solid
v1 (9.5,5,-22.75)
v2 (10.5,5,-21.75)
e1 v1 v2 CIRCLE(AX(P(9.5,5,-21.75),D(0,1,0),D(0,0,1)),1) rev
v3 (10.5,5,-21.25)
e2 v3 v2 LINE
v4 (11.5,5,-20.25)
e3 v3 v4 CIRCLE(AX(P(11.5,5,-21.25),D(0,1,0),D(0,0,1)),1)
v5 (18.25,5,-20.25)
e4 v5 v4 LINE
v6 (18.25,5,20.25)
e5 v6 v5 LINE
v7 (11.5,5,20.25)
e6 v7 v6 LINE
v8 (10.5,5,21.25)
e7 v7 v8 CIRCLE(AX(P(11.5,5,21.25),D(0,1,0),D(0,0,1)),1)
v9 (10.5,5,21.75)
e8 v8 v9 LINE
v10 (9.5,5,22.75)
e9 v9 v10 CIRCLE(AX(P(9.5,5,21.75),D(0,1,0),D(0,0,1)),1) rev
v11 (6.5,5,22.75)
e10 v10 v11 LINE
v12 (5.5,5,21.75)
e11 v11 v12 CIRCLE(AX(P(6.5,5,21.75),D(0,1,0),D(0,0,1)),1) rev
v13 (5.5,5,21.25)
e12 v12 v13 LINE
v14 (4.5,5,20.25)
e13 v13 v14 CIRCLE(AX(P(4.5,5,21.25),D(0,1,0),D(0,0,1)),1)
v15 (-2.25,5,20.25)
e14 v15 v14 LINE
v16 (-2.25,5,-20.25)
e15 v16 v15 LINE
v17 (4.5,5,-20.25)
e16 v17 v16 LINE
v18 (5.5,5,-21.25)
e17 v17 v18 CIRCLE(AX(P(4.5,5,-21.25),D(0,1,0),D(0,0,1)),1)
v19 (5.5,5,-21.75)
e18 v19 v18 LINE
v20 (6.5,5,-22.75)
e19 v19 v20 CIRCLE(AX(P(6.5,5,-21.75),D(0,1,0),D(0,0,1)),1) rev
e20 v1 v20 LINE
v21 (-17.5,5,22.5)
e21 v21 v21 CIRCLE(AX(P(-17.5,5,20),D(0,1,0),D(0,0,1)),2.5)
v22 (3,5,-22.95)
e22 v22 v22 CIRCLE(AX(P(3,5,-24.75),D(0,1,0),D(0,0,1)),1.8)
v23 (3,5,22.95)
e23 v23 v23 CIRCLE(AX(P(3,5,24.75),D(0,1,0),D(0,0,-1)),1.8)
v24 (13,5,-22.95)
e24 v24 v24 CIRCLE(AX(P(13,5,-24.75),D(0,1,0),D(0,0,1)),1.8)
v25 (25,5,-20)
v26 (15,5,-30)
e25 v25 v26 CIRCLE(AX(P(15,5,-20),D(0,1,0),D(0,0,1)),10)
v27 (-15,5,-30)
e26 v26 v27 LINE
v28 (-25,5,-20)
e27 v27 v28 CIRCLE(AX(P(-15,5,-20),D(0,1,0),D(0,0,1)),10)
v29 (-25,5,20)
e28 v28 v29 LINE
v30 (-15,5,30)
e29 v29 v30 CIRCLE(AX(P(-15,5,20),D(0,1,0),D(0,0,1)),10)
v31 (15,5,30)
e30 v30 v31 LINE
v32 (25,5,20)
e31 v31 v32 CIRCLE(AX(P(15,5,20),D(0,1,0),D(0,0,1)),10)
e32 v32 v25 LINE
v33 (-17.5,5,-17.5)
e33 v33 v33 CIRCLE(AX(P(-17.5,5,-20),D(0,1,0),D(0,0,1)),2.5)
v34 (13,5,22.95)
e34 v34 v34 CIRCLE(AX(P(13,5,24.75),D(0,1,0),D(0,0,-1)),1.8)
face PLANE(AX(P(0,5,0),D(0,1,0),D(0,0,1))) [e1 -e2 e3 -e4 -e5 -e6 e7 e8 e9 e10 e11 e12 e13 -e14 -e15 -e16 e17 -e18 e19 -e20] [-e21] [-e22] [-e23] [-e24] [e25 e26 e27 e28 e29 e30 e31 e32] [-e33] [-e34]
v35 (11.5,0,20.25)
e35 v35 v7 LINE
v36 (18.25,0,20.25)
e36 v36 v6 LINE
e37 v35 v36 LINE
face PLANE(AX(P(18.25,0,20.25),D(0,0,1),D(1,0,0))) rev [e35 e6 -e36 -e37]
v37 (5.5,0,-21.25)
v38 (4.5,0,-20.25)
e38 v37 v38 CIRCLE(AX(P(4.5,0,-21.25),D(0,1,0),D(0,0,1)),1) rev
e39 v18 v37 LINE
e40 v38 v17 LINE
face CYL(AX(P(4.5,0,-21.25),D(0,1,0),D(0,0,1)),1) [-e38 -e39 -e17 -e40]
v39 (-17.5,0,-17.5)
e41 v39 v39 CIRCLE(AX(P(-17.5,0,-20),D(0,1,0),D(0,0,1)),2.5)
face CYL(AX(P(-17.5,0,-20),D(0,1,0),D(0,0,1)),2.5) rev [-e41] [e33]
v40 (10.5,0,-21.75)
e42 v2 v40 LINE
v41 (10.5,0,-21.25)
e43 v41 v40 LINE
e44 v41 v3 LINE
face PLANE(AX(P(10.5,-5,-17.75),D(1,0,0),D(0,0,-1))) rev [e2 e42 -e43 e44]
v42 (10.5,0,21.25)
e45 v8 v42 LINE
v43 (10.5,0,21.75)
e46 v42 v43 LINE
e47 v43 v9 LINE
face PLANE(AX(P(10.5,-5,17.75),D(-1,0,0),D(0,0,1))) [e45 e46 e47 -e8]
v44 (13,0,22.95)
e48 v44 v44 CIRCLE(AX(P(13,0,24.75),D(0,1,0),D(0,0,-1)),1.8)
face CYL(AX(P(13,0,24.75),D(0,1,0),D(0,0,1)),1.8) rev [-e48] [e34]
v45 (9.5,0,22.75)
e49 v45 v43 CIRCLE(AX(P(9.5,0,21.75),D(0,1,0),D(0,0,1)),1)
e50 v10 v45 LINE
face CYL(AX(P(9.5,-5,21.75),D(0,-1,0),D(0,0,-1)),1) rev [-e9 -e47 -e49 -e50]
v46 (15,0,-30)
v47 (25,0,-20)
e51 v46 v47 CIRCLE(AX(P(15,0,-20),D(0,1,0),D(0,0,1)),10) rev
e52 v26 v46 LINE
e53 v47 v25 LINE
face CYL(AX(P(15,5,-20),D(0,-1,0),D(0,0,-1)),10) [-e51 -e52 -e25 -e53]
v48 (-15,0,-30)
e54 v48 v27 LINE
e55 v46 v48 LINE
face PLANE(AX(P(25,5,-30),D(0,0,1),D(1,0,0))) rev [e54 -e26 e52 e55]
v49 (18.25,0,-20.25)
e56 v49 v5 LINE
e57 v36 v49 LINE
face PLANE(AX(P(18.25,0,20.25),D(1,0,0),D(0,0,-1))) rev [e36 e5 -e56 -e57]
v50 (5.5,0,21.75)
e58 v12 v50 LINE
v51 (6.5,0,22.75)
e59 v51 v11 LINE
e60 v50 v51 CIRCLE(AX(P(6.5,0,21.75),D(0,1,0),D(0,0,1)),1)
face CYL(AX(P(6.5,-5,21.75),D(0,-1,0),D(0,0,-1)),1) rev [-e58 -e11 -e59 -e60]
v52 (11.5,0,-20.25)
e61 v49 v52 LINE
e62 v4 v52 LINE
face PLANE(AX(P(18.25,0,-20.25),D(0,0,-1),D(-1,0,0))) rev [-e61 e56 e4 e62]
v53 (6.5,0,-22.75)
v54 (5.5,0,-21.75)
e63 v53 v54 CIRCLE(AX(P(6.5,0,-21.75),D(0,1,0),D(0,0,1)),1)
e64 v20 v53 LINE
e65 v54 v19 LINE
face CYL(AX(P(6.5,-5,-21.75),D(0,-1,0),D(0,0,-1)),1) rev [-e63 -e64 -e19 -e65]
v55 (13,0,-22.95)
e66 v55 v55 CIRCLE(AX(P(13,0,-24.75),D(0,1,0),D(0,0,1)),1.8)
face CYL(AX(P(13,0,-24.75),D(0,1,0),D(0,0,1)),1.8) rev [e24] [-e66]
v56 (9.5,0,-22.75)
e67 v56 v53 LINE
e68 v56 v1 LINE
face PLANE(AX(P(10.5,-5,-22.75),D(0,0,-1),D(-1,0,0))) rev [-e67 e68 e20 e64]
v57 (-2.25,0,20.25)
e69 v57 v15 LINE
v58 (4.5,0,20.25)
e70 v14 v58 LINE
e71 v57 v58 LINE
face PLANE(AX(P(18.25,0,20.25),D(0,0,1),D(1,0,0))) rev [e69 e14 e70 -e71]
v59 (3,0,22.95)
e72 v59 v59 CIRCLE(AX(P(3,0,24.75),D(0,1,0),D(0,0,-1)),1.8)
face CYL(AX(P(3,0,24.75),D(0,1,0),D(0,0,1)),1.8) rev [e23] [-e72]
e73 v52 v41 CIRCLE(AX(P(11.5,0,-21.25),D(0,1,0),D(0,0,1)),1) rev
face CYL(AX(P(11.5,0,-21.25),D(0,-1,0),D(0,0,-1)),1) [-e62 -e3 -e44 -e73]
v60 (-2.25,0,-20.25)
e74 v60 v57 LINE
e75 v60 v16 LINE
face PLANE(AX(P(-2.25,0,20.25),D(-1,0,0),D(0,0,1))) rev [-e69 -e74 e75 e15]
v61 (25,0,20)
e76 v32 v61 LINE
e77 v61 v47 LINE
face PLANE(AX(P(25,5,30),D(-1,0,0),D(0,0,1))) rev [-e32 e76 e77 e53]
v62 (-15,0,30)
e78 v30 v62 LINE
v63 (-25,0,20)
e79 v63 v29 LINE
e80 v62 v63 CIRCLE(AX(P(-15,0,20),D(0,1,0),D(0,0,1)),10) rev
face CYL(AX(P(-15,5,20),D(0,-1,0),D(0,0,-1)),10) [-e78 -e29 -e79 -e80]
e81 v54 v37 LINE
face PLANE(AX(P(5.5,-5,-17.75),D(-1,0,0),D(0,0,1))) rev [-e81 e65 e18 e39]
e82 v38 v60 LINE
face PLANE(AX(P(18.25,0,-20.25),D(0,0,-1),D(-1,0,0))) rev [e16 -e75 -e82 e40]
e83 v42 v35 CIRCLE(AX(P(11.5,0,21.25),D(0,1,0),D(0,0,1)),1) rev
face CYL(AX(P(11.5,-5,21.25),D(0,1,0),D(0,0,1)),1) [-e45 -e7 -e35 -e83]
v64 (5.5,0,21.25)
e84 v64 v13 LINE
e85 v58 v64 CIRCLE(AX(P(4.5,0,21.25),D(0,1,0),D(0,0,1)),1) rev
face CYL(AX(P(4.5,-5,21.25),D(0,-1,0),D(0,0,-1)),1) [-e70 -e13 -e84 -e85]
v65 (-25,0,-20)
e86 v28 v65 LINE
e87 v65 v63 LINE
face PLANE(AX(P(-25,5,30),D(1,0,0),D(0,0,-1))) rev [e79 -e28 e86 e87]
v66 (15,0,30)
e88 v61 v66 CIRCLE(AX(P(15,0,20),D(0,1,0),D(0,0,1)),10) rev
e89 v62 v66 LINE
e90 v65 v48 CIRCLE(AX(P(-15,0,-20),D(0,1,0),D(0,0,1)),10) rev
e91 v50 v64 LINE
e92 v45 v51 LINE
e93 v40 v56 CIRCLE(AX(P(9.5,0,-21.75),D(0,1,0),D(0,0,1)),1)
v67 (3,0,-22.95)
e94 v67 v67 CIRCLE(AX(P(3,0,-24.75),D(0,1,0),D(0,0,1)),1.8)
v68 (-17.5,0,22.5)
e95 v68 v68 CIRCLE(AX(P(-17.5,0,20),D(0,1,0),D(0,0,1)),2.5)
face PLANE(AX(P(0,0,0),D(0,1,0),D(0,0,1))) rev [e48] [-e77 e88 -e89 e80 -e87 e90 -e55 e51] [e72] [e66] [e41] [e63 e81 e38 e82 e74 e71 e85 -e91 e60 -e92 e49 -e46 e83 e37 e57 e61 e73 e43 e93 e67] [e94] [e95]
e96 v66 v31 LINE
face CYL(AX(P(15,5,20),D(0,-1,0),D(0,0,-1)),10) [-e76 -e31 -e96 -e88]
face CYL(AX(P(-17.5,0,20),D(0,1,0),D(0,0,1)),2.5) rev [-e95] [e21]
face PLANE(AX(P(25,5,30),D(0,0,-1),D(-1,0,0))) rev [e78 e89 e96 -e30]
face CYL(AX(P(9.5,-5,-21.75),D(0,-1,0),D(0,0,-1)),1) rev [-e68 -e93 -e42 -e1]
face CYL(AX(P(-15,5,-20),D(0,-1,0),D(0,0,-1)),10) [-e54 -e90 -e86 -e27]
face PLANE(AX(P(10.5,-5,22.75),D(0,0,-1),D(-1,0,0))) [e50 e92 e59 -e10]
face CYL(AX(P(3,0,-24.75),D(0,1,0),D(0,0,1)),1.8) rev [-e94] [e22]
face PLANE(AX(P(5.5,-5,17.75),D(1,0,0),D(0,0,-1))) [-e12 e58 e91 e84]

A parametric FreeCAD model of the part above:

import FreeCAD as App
import Part
import Sketcher
from FreeCAD import Vector
Q = App.Units.Quantity


def edges_at(feature, points):
    """Names of the edges that pass closest to the given points."""
    edges = feature.Shape.Edges
    near = lambda p: min(range(len(edges)), key=lambda i: edges[i].distToShape(Part.Vertex(*p))[0])
    return sorted({f"Edge{near(p) + 1}" for p in points})

doc = App.newDocument("Part")
body = doc.addObject("PartDesign::Body", "Body")

# Sketch on XZ plane
sketch1 = body.newObject("Sketcher::SketchObject", "Sketch")
sketch1.AttachmentSupport = (doc.getObject("XZ_Plane"), [""])
sketch1.MapMode = "FlatFace"
sketch1.addGeometry([
    Part.LineSegment(Vector(-25, -30, 0), Vector(-25, 30, 0)),
    Part.LineSegment(Vector(-25, 30, 0), Vector(25, 30, 0)),
    Part.LineSegment(Vector(25, 30, 0), Vector(25, -30, 0)),
    Part.LineSegment(Vector(25, -30, 0), Vector(-25, -30, 0)),
], False)
sketch1.addConstraint([
    Sketcher.Constraint("Coincident", 0, 2, 1, 1),
    Sketcher.Constraint("Coincident", 1, 2, 2, 1),
    Sketcher.Constraint("Coincident", 2, 2, 3, 1),
    Sketcher.Constraint("Coincident", 3, 2, 0, 1),
    Sketcher.Constraint("Vertical", 0),
    Sketcher.Constraint("Horizontal", 1),
    Sketcher.Constraint("Vertical", 2),
    Sketcher.Constraint("Horizontal", 3),
    Sketcher.Constraint("Symmetric", 0, 2, 2, 2, -1, 1),
    Sketcher.Constraint("DistanceX", 1, 1, 1, 2, Q("50 mm")),
    Sketcher.Constraint("DistanceY", 0, 1, 0, 2, Q("60 mm")),
])
pad1 = body.newObject("PartDesign::Pad", "Pad")
pad1.Profile = sketch1
pad1.Length = 5
pad1.Reversed = True

# Sketch on XZ plane
sketch2 = body.newObject("Sketcher::SketchObject", "Sketch001")
sketch2.AttachmentSupport = (doc.getObject("XZ_Plane"), [""])
sketch2.MapMode = "FlatFace"
sketch2.AttachmentOffset = App.Placement(Vector(0, 0, -5), App.Rotation())
sketch2.addGeometry([
    Part.LineSegment(Vector(-2, -20, 0), Vector(-2, 20, 0)),
    Part.LineSegment(Vector(-2, 20, 0), Vector(18, 20, 0)),
    Part.LineSegment(Vector(18, 20, 0), Vector(18, -20, 0)),
    Part.LineSegment(Vector(18, -20, 0), Vector(-2, -20, 0)),
], False)
sketch2.addConstraint([
    Sketcher.Constraint("Coincident", 0, 2, 1, 1),
    Sketcher.Constraint("Coincident", 1, 2, 2, 1),
    Sketcher.Constraint("Coincident", 2, 2, 3, 1),
    Sketcher.Constraint("Coincident", 3, 2, 0, 1),
    Sketcher.Constraint("Vertical", 0),
    Sketcher.Constraint("Horizontal", 1),
    Sketcher.Constraint("Vertical", 2),
    Sketcher.Constraint("Horizontal", 3),
    Sketcher.Constraint("DistanceX", 1, 1, 1, 2, Q("20.5 mm")),
    Sketcher.Constraint("DistanceY", 0, 1, 0, 2, Q("40.5 mm")),
    Sketcher.Constraint("DistanceX", 0, 2, -1, 1, Q("2.25 mm")),
    Sketcher.Constraint("DistanceY", -1, 1, 0, 2, Q("20.25 mm")),
])
pocket1 = body.newObject("PartDesign::Pocket", "Pocket")
pocket1.Profile = sketch2
pocket1.Length = 5
pocket1.Reversed = True

# Sketch on XZ plane
sketch3 = body.newObject("Sketcher::SketchObject", "Sketch002")
sketch3.AttachmentSupport = (doc.getObject("XZ_Plane"), [""])
sketch3.MapMode = "FlatFace"
sketch3.AttachmentOffset = App.Placement(Vector(0, 0, -5), App.Rotation())
sketch3.addGeometry([
    Part.Circle(Vector(3, -24.8, 0), Vector(0, 0, 1), 1.8),
    Part.Circle(Vector(13, -24.8, 0), Vector(0, 0, 1), 1.8),
    Part.Circle(Vector(13, 24.8, 0), Vector(0, 0, 1), 1.8),
    Part.Circle(Vector(3, 24.8, 0), Vector(0, 0, 1), 1.8),
], False)
sketch3.addConstraint([
    Sketcher.Constraint("Equal", 0, 1),
    Sketcher.Constraint("Equal", 1, 2),
    Sketcher.Constraint("Equal", 2, 3),
    Sketcher.Constraint("Symmetric", 1, 3, 2, 3, -1),
    Sketcher.Constraint("Symmetric", 0, 3, 3, 3, -1),
    Sketcher.Constraint("Horizontal", 0, 3, 1, 3),
    Sketcher.Constraint("Diameter", 0, Q("3.6 mm")),
    Sketcher.Constraint("DistanceX", -1, 1, 0, 3, Q("3 mm")),
    Sketcher.Constraint("DistanceX", -1, 1, 1, 3, Q("13 mm")),
    Sketcher.Constraint("DistanceY", 1, 3, 2, 3, Q("49.5 mm")),
])
pocket2 = body.newObject("PartDesign::Pocket", "Pocket001")
pocket2.Profile = sketch3
pocket2.Length = 5
pocket2.Reversed = True

# Sketch on XZ plane
sketch4 = body.newObject("Sketcher::SketchObject", "Sketch003")
sketch4.AttachmentSupport = (doc.getObject("XZ_Plane"), [""])
sketch4.MapMode = "FlatFace"
sketch4.AttachmentOffset = App.Placement(Vector(0, 0, -5), App.Rotation())
sketch4.addGeometry([
    Part.Circle(Vector(-17.5, -20, 0), Vector(0, 0, 1), 2.5),
    Part.Circle(Vector(-17.5, 20, 0), Vector(0, 0, 1), 2.5),
], False)
sketch4.addConstraint([
    Sketcher.Constraint("Equal", 0, 1),
    Sketcher.Constraint("Symmetric", 0, 3, 1, 3, -1),
    Sketcher.Constraint("Diameter", 0, Q("5 mm")),
    Sketcher.Constraint("DistanceY", 0, 3, -1, 1, Q("20 mm")),
    Sketcher.Constraint("DistanceX", 0, 3, -1, 1, Q("17.5 mm")),
])
pocket3 = body.newObject("PartDesign::Pocket", "Pocket002")
pocket3.Profile = sketch4
pocket3.Length = 5
pocket3.Reversed = True
doc.recompute()

fillet = body.newObject("PartDesign::Fillet", "Fillet")
fillet.Base = (pocket3, edges_at(pocket3, [
    (-25, 2.5, -30),
    (25, 2.5, -30),
    (25, 2.5, 30),
    (-25, 2.5, 30),
]))
fillet.Radius = 10

# Sketch on XZ plane
sketch5 = body.newObject("Sketcher::SketchObject", "Sketch004")
sketch5.AttachmentSupport = (doc.getObject("XZ_Plane"), [""])
sketch5.MapMode = "FlatFace"
sketch5.AttachmentOffset = App.Placement(Vector(0, 0, -5), App.Rotation())
sketch5.addGeometry([
    Part.LineSegment(Vector(6, -23, 0), Vector(6, -18, 0)),
    Part.LineSegment(Vector(6, -18, 0), Vector(10, -18, 0)),
    Part.LineSegment(Vector(10, -18, 0), Vector(10, -23, 0)),
    Part.LineSegment(Vector(10, -23, 0), Vector(6, -23, 0)),
], False)
sketch5.addConstraint([
    Sketcher.Constraint("Coincident", 0, 2, 1, 1),
    Sketcher.Constraint("Coincident", 1, 2, 2, 1),
    Sketcher.Constraint("Coincident", 2, 2, 3, 1),
    Sketcher.Constraint("Coincident", 3, 2, 0, 1),
    Sketcher.Constraint("Vertical", 0),
    Sketcher.Constraint("Horizontal", 1),
    Sketcher.Constraint("Vertical", 2),
    Sketcher.Constraint("Horizontal", 3),
    Sketcher.Constraint("Equal", 3, 0),
    Sketcher.Constraint("DistanceX", 1, 1, 1, 2, Q("5 mm")),
    Sketcher.Constraint("DistanceX", -1, 1, 0, 2, Q("5.5 mm")),
    Sketcher.Constraint("DistanceY", 0, 2, -1, 1, Q("17.75 mm")),
])
pocket4 = body.newObject("PartDesign::Pocket", "Pocket003")
pocket4.Profile = sketch5
pocket4.Length = 10
pocket4.Reversed = True
doc.recompute()

mirrored = body.newObject("PartDesign::Mirrored", "Mirrored")
mirrored.Originals = [pocket4]
mirrored.MirrorPlane = (doc.getObject("XY_Plane"), [""])
body.Tip = mirrored
doc.recompute()

fillet2 = body.newObject("PartDesign::Fillet", "Fillet001")
fillet2.Base = (mirrored, edges_at(mirrored, [
    (10.5, 2.5, 20.25),
    (5.5, 2.5, 20.25),
    (10.5, 2.5, 22.75),
    (5.5, 2.5, 22.75),
    (10.5, 2.5, -20.25),
    (5.5, 2.5, -20.25),
    (5.5, 2.5, -22.75),
    (10.5, 2.5, -22.75),
]))
fillet2.Radius = 1

doc.recompute()
